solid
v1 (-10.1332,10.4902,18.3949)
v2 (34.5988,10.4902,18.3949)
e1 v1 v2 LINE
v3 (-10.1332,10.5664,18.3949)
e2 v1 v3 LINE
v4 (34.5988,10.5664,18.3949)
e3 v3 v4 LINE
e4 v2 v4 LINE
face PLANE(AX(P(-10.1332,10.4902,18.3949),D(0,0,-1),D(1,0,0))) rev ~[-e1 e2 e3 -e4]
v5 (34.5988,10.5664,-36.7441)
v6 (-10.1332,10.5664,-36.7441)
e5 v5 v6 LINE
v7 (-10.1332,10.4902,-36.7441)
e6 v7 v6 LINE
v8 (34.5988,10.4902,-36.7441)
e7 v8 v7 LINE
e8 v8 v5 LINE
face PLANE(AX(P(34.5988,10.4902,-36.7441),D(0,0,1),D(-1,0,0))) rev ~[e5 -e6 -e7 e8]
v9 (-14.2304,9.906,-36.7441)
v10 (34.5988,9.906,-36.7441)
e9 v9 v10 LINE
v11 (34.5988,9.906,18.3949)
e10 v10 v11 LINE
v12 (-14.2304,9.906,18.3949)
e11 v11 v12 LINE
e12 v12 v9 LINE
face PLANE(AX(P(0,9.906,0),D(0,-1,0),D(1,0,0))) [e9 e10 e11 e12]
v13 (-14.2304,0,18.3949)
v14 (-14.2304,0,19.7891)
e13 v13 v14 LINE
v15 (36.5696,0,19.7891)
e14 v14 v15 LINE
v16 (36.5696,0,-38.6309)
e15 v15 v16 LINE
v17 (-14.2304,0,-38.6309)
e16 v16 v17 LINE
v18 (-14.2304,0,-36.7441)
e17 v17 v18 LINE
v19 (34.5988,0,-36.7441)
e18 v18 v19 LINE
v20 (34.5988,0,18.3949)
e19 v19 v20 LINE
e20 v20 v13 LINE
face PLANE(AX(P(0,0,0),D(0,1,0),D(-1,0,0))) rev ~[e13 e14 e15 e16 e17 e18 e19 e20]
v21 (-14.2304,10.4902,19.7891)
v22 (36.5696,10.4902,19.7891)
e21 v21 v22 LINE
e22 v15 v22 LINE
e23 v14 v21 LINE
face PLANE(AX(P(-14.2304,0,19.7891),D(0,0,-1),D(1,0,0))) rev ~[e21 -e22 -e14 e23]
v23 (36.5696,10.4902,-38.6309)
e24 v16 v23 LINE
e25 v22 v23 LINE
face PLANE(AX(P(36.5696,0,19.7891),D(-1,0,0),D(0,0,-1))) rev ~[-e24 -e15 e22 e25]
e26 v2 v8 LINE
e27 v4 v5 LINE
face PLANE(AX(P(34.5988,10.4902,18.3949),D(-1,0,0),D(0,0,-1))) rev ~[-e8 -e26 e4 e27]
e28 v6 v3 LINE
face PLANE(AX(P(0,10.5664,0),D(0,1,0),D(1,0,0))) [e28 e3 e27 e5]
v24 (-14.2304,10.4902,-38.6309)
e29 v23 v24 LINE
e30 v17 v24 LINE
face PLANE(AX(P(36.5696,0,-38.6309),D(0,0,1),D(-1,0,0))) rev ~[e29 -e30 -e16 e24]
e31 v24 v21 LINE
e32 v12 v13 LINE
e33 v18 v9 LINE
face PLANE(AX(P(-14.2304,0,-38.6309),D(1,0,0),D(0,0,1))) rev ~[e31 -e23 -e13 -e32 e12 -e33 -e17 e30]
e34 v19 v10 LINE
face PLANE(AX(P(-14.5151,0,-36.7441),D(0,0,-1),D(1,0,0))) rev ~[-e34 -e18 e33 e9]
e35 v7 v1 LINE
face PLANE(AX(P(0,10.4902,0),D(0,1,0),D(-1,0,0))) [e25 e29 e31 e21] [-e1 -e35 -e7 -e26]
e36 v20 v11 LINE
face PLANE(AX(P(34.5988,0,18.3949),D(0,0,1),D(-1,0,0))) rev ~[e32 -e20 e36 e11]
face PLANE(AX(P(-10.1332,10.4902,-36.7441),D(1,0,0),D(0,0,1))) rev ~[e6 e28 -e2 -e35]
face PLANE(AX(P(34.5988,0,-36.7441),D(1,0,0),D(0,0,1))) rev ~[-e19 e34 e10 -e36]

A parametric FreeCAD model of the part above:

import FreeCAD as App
import Part
import Sketcher
Q = App.Units.Quantity

doc = App.newDocument("Part")
params = doc.addObject("Spreadsheet::Sheet", "Params")
for row, (alias, value) in enumerate([
    ("sketch1_width", "2 in"),
    ("sketch1_height", "2.3 in"),
    ("pad1_length", "0.413 in"),
    ("pocket1_length", "0.39 in"),
    ("pad2_length", "0.003 in"),
], start=1):
    params.set(f"A{row}", alias)
    params.set(f"B{row}", "=" + value)
    params.setAlias(f"B{row}", alias)

body = doc.addObject("PartDesign::Body", "Body")

sketch1 = doc.addObject("Sketcher::SketchObject", "Sketch")
body.addObject(sketch1)
sketch1.AttachmentSupport = (doc.XZ_Plane, [""])
sketch1.MapMode = "FlatFace"
sketch1.addGeometry([
    Part.LineSegment(App.Vector(-14.2304, -38.6309, 0), App.Vector(-14.2304, 19.7891, 0)),
    Part.LineSegment(App.Vector(-14.2304, 19.7891, 0), App.Vector(36.5696, 19.7891, 0)),
    Part.LineSegment(App.Vector(36.5696, 19.7891, 0), App.Vector(36.5696, -38.6309, 0)),
    Part.LineSegment(App.Vector(36.5696, -38.6309, 0), App.Vector(-14.2304, -38.6309, 0)),
], False)
sketch1.addConstraint([
    Sketcher.Constraint("Coincident", 0, 2, 1, 1),
    Sketcher.Constraint("Coincident", 1, 2, 2, 1),
    Sketcher.Constraint("Coincident", 2, 2, 3, 1),
    Sketcher.Constraint("Coincident", 3, 2, 0, 1),
    Sketcher.Constraint("Vertical", 0),
    Sketcher.Constraint("Horizontal", 1),
    Sketcher.Constraint("Vertical", 2),
    Sketcher.Constraint("Horizontal", 3),
    Sketcher.Constraint("DistanceX", 1, 1, 1, 2, Q("2 in")),
    Sketcher.Constraint("DistanceY", 0, 1, 0, 2, Q("2.3 in")),
    Sketcher.Constraint("DistanceY", -1, 1, 0, 2, Q("0.7791 in")),
    Sketcher.Constraint("DistanceX", 0, 2, -1, 1, Q("14.2304 mm")),
])
sketch1.setExpression("Constraints[8]", "Params.sketch1_width")
sketch1.setExpression("Constraints[9]", "Params.sketch1_height")
pad1 = doc.addObject("PartDesign::Pad", "Pad")
body.addObject(pad1)
pad1.Profile = sketch1
pad1.setExpression("Length", "Params.pad1_length")
pad1.Reversed = True

sketch2 = doc.addObject("Sketcher::SketchObject", "Sketch001")
body.addObject(sketch2)
sketch2.AttachmentSupport = (doc.XZ_Plane, [""])
sketch2.MapMode = "FlatFace"
sketch2.addGeometry([
    Part.LineSegment(App.Vector(34.5988, -36.7441, 0), App.Vector(34.5988, 18.3949, 0)),
    Part.LineSegment(App.Vector(34.5988, 18.3949, 0), App.Vector(-14.5151, 18.3949, 0)),
    Part.LineSegment(App.Vector(-14.5151, 18.3949, 0), App.Vector(-14.5151, -36.7441, 0)),
    Part.LineSegment(App.Vector(-14.5151, -36.7441, 0), App.Vector(34.5988, -36.7441, 0)),
], False)
sketch2.addConstraint([
    Sketcher.Constraint("Coincident", 0, 2, 1, 1),
    Sketcher.Constraint("Coincident", 1, 2, 2, 1),
    Sketcher.Constraint("Coincident", 2, 2, 3, 1),
    Sketcher.Constraint("Coincident", 3, 2, 0, 1),
    Sketcher.Constraint("Vertical", 0),
    Sketcher.Constraint("Horizontal", 1),
    Sketcher.Constraint("Vertical", 2),
    Sketcher.Constraint("Horizontal", 3),
    Sketcher.Constraint("DistanceX", 1, 2, 1, 1, Q("49.114 mm")),
    Sketcher.Constraint("DistanceY", 0, 1, 0, 2, Q("55.139 mm")),
    Sketcher.Constraint("DistanceY", -1, 1, 0, 2, Q("0.7242 in")),
    Sketcher.Constraint("DistanceX", -1, 1, 0, 2, Q("34.5988 mm")),
])
pocket1 = doc.addObject("PartDesign::Pocket", "Pocket")
body.addObject(pocket1)
pocket1.Profile = sketch2
pocket1.setExpression("Length", "Params.pocket1_length")

sketch3 = doc.addObject("Sketcher::SketchObject", "Sketch002")
body.addObject(sketch3)
sketch3.AttachmentSupport = (doc.XZ_Plane, [""])
sketch3.MapMode = "FlatFace"
sketch3.AttachmentOffset = App.Placement(App.Vector(0, 0, -0.413 * 25.4), App.Rotation())
sketch3.addGeometry([
    Part.LineSegment(App.Vector(34.5988, 18.3949, 0), App.Vector(34.5988, -36.7441, 0)),
    Part.LineSegment(App.Vector(34.5988, -36.7441, 0), App.Vector(-10.1332, -36.7441, 0)),
    Part.LineSegment(App.Vector(-10.1332, -36.7441, 0), App.Vector(-10.1332, 18.3949, 0)),
    Part.LineSegment(App.Vector(-10.1332, 18.3949, 0), App.Vector(34.5988, 18.3949, 0)),
], False)
sketch3.addConstraint([
    Sketcher.Constraint("Coincident", 0, 2, 1, 1),
    Sketcher.Constraint("Coincident", 1, 2, 2, 1),
    Sketcher.Constraint("Coincident", 2, 2, 3, 1),
    Sketcher.Constraint("Coincident", 3, 2, 0, 1),
    Sketcher.Constraint("Vertical", 0),
    Sketcher.Constraint("Horizontal", 1),
    Sketcher.Constraint("Vertical", 2),
    Sketcher.Constraint("Horizontal", 3),
    Sketcher.Constraint("DistanceX", 1, 2, 1, 1, Q("1.7611 in")),
    Sketcher.Constraint("DistanceY", 0, 2, 0, 1, Q("55.139 mm")),
    Sketcher.Constraint("DistanceY", -1, 1, 2, 2, Q("0.7242 in")),
    Sketcher.Constraint("DistanceX", -1, 1, 0, 2, Q("34.5988 mm")),
])
pad2 = doc.addObject("PartDesign::Pad", "Pad001")
body.addObject(pad2)
pad2.Profile = sketch3
pad2.setExpression("Length", "Params.pad2_length")
pad2.Reversed = True

doc.recompute()
